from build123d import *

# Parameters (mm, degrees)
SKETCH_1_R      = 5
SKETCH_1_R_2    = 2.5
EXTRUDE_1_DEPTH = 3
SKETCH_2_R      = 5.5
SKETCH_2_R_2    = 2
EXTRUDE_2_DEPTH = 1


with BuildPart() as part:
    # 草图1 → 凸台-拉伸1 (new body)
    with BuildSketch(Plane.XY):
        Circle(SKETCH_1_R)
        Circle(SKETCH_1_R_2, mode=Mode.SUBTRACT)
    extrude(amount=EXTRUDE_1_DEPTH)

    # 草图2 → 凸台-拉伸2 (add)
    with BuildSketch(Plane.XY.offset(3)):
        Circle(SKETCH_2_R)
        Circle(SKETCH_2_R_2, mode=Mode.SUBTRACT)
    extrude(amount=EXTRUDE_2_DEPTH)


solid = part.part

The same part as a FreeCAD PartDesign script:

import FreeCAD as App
import Part
import Sketcher
Q = App.Units.Quantity

doc = App.newDocument("Part")
body = doc.addObject("PartDesign::Body", "Body")

sketch1 = body.newObject("Sketcher::SketchObject", "Sketch")
sketch1.AttachmentSupport = (doc.getObject("XY_Plane"), [""])
sketch1.MapMode = "FlatFace"
sketch1.addGeometry([
    Part.Circle(App.Vector(0, 0, 0), App.Vector(0, 0, 1), 5),
    Part.Circle(App.Vector(0, 0, 0), App.Vector(0, 0, 1), 2.5),
], False)
sketch1.addConstraint([
    Sketcher.Constraint("Coincident", 0, 3, -1, 1),
    Sketcher.Constraint("Coincident", 1, 3, -1, 1),
    Sketcher.Constraint("Diameter", 0, Q("10 mm")),
    Sketcher.Constraint("Diameter", 1, Q("5 mm")),
])
pad1 = body.newObject("PartDesign::Pad", "Pad")
pad1.Profile = sketch1
pad1.Length = 3

sketch2 = body.newObject("Sketcher::SketchObject", "Sketch001")
sketch2.AttachmentSupport = (doc.getObject("XY_Plane"), [""])
sketch2.MapMode = "FlatFace"
sketch2.AttachmentOffset = App.Placement(App.Vector(0, 0, 3), App.Rotation())
sketch2.addGeometry([
    Part.Circle(App.Vector(0, 0, 0), App.Vector(0, 0, 1), 5.5),
    Part.Circle(App.Vector(0, 0, 0), App.Vector(0, 0, 1), 2),
], False)
sketch2.addConstraint([
    Sketcher.Constraint("Coincident", 0, 3, -1, 1),
    Sketcher.Constraint("Coincident", 1, 3, -1, 1),
    Sketcher.Constraint("Diameter", 0, Q("11 mm")),
    Sketcher.Constraint("Diameter", 1, Q("4 mm")),
])
pad2 = body.newObject("PartDesign::Pad", "Pad001")
pad2.Profile = sketch2
pad2.Length = 1

doc.recompute()
